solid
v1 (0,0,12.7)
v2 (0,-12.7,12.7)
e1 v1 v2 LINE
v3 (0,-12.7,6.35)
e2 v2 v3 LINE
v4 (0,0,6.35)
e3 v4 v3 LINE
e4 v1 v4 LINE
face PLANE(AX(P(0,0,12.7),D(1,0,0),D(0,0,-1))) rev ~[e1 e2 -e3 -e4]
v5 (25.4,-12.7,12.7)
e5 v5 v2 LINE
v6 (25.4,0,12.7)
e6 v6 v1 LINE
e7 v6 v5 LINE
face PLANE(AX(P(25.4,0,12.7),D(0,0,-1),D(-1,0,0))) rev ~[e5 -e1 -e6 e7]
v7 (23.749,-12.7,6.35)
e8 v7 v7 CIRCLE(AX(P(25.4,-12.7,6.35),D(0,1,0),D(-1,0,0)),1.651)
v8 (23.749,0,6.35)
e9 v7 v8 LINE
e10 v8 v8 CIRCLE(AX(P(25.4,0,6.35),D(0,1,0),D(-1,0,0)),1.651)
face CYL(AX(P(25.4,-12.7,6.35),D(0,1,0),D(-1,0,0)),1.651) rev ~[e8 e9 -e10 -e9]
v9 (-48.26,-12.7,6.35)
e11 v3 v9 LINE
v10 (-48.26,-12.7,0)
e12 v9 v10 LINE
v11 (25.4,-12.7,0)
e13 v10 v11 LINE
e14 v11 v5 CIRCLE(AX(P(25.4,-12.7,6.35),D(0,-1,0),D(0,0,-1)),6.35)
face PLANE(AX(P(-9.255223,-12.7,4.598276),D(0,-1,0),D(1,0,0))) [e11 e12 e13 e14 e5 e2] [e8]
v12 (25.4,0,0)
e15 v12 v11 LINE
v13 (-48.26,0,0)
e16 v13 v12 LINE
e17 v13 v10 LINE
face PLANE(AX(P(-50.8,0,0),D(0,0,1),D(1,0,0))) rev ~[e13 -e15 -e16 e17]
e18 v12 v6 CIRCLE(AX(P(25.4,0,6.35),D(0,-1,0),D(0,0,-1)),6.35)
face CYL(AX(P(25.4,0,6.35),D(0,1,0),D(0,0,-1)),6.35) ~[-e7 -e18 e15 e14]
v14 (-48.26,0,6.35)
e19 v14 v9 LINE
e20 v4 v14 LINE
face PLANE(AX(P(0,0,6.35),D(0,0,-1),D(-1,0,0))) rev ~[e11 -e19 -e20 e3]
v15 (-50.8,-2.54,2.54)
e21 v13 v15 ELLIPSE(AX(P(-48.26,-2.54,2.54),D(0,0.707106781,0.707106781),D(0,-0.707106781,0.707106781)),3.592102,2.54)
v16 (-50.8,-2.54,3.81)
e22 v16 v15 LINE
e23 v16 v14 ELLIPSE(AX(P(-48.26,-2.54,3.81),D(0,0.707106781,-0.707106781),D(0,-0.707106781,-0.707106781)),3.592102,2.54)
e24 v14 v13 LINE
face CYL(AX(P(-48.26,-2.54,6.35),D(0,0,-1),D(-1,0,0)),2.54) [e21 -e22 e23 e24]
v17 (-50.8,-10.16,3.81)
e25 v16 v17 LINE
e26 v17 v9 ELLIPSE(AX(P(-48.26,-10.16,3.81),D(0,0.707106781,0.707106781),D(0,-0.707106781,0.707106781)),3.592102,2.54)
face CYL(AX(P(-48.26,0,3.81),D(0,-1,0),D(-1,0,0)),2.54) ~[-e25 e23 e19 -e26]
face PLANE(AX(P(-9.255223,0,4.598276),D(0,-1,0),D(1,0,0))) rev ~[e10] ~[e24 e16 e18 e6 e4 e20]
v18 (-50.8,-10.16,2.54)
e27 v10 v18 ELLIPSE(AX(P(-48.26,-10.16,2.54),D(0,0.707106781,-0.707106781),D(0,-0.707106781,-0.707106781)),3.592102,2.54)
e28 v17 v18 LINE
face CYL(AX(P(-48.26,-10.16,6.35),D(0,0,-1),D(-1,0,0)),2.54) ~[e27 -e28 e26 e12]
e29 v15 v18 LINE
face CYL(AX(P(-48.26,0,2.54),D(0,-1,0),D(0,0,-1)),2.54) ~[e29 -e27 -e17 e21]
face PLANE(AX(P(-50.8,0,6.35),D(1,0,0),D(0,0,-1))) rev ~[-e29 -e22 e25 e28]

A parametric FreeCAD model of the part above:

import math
import FreeCAD as App
import Part
import Sketcher
Q = App.Units.Quantity


def edges_at(feature, points):
    """Names of the edges that pass closest to the given points."""
    edges = feature.Shape.Edges
    near = lambda p: min(range(len(edges)), key=lambda i: edges[i].distToShape(Part.Vertex(*p))[0])
    return sorted({f"Edge{near(p) + 1}" for p in points})

doc = App.newDocument("Part")
body = doc.addObject("PartDesign::Body", "Body")

sketch1 = body.newObject("Sketcher::SketchObject", "Sketch")
sketch1.AttachmentSupport = (doc.getObject("XZ_Plane"), [""])
sketch1.MapMode = "FlatFace"
sketch1.addGeometry([
    Part.LineSegment(App.Vector(-51, 0, 0), App.Vector(25, 0, 0)),
    Part.ArcOfCircle(Part.Circle(App.Vector(25, 6, 0), App.Vector(0, 0, 1), 6), math.radians(-90), math.radians(90)),
    Part.LineSegment(App.Vector(25, 13, 0), App.Vector(0, 13, 0)),
    Part.LineSegment(App.Vector(0, 13, 0), App.Vector(0, 6, 0)),
    Part.LineSegment(App.Vector(0, 6, 0), App.Vector(-51, 6, 0)),
    Part.LineSegment(App.Vector(-51, 6, 0), App.Vector(-51, 0, 0)),
], False)
sketch1.addConstraint([
    Sketcher.Constraint("Tangent", 0, 2, 1, 1),
    Sketcher.Constraint("Tangent", 1, 2, 2, 1),
    Sketcher.Constraint("Coincident", 2, 2, 3, 1),
    Sketcher.Constraint("Coincident", 3, 2, 4, 1),
    Sketcher.Constraint("Coincident", 4, 2, 5, 1),
    Sketcher.Constraint("Coincident", 5, 2, 0, 1),
    Sketcher.Constraint("Horizontal", 0),
    Sketcher.Constraint("Horizontal", 2),
    Sketcher.Constraint("Vertical", 3),
    Sketcher.Constraint("Horizontal", 4),
    Sketcher.Constraint("Vertical", 5),
    Sketcher.Constraint("PointOnObject", 0, 2, -1),
    Sketcher.Constraint("PointOnObject", 2, 2, -2),
    Sketcher.Constraint("Horizontal", 1, 3, 3, 2),
    Sketcher.Constraint("DistanceX", 0, 1, 0, 2, Q("3 in")),
    Sketcher.Constraint("DistanceX", 2, 2, 2, 1, Q("1 in")),
    Sketcher.Constraint("Radius", 1, Q("0.25 in")),
])
pad1 = body.newObject("PartDesign::Pad", "Pad")
pad1.Profile = sketch1
pad1.Length = Q("0.5 in")

sketch2 = body.newObject("Sketcher::SketchObject", "Sketch001")
sketch2.AttachmentSupport = (doc.getObject("XZ_Plane"), [""])
sketch2.MapMode = "FlatFace"
sketch2.AttachmentOffset = App.Placement(App.Vector(0, 0, 0.5 * 25.4), App.Rotation())
sketch2.addGeometry(Part.Circle(App.Vector(25.4, 6.3, 0), App.Vector(0, 0, 1), 1.7), False)
sketch2.addConstraint([
    Sketcher.Constraint("Diameter", 0, Q("0.13 in")),
    Sketcher.Constraint("DistanceX", -1, 1, 0, 3, Q("1 in")),
    Sketcher.Constraint("DistanceY", -1, 1, 0, 3, Q("0.25 in")),
])
doc.recompute()
hole = body.newObject("PartDesign::Hole", "Hole")
hole.Profile = sketch2
hole.ThreadType = "None"
hole.Diameter = Q("0.13 in")
hole.DepthType = "ThroughAll"
hole.HoleCutType = "Counterbore"
hole.HoleCutDiameter = Q("0.256 in")
hole.HoleCutDepth = Q("0 in")
doc.recompute()

fillet = body.newObject("PartDesign::Fillet", "Fillet")
fillet.Base = (hole, edges_at(hole, [
    (-50.8, -6.35, 6.35),
    (-50.8, -6.35, 0),
    (-50.8, 0, 3.175),
    (-50.8, -12.7, 3.175),
]))
fillet.Radius = Q("0.1 in")

doc.recompute()
